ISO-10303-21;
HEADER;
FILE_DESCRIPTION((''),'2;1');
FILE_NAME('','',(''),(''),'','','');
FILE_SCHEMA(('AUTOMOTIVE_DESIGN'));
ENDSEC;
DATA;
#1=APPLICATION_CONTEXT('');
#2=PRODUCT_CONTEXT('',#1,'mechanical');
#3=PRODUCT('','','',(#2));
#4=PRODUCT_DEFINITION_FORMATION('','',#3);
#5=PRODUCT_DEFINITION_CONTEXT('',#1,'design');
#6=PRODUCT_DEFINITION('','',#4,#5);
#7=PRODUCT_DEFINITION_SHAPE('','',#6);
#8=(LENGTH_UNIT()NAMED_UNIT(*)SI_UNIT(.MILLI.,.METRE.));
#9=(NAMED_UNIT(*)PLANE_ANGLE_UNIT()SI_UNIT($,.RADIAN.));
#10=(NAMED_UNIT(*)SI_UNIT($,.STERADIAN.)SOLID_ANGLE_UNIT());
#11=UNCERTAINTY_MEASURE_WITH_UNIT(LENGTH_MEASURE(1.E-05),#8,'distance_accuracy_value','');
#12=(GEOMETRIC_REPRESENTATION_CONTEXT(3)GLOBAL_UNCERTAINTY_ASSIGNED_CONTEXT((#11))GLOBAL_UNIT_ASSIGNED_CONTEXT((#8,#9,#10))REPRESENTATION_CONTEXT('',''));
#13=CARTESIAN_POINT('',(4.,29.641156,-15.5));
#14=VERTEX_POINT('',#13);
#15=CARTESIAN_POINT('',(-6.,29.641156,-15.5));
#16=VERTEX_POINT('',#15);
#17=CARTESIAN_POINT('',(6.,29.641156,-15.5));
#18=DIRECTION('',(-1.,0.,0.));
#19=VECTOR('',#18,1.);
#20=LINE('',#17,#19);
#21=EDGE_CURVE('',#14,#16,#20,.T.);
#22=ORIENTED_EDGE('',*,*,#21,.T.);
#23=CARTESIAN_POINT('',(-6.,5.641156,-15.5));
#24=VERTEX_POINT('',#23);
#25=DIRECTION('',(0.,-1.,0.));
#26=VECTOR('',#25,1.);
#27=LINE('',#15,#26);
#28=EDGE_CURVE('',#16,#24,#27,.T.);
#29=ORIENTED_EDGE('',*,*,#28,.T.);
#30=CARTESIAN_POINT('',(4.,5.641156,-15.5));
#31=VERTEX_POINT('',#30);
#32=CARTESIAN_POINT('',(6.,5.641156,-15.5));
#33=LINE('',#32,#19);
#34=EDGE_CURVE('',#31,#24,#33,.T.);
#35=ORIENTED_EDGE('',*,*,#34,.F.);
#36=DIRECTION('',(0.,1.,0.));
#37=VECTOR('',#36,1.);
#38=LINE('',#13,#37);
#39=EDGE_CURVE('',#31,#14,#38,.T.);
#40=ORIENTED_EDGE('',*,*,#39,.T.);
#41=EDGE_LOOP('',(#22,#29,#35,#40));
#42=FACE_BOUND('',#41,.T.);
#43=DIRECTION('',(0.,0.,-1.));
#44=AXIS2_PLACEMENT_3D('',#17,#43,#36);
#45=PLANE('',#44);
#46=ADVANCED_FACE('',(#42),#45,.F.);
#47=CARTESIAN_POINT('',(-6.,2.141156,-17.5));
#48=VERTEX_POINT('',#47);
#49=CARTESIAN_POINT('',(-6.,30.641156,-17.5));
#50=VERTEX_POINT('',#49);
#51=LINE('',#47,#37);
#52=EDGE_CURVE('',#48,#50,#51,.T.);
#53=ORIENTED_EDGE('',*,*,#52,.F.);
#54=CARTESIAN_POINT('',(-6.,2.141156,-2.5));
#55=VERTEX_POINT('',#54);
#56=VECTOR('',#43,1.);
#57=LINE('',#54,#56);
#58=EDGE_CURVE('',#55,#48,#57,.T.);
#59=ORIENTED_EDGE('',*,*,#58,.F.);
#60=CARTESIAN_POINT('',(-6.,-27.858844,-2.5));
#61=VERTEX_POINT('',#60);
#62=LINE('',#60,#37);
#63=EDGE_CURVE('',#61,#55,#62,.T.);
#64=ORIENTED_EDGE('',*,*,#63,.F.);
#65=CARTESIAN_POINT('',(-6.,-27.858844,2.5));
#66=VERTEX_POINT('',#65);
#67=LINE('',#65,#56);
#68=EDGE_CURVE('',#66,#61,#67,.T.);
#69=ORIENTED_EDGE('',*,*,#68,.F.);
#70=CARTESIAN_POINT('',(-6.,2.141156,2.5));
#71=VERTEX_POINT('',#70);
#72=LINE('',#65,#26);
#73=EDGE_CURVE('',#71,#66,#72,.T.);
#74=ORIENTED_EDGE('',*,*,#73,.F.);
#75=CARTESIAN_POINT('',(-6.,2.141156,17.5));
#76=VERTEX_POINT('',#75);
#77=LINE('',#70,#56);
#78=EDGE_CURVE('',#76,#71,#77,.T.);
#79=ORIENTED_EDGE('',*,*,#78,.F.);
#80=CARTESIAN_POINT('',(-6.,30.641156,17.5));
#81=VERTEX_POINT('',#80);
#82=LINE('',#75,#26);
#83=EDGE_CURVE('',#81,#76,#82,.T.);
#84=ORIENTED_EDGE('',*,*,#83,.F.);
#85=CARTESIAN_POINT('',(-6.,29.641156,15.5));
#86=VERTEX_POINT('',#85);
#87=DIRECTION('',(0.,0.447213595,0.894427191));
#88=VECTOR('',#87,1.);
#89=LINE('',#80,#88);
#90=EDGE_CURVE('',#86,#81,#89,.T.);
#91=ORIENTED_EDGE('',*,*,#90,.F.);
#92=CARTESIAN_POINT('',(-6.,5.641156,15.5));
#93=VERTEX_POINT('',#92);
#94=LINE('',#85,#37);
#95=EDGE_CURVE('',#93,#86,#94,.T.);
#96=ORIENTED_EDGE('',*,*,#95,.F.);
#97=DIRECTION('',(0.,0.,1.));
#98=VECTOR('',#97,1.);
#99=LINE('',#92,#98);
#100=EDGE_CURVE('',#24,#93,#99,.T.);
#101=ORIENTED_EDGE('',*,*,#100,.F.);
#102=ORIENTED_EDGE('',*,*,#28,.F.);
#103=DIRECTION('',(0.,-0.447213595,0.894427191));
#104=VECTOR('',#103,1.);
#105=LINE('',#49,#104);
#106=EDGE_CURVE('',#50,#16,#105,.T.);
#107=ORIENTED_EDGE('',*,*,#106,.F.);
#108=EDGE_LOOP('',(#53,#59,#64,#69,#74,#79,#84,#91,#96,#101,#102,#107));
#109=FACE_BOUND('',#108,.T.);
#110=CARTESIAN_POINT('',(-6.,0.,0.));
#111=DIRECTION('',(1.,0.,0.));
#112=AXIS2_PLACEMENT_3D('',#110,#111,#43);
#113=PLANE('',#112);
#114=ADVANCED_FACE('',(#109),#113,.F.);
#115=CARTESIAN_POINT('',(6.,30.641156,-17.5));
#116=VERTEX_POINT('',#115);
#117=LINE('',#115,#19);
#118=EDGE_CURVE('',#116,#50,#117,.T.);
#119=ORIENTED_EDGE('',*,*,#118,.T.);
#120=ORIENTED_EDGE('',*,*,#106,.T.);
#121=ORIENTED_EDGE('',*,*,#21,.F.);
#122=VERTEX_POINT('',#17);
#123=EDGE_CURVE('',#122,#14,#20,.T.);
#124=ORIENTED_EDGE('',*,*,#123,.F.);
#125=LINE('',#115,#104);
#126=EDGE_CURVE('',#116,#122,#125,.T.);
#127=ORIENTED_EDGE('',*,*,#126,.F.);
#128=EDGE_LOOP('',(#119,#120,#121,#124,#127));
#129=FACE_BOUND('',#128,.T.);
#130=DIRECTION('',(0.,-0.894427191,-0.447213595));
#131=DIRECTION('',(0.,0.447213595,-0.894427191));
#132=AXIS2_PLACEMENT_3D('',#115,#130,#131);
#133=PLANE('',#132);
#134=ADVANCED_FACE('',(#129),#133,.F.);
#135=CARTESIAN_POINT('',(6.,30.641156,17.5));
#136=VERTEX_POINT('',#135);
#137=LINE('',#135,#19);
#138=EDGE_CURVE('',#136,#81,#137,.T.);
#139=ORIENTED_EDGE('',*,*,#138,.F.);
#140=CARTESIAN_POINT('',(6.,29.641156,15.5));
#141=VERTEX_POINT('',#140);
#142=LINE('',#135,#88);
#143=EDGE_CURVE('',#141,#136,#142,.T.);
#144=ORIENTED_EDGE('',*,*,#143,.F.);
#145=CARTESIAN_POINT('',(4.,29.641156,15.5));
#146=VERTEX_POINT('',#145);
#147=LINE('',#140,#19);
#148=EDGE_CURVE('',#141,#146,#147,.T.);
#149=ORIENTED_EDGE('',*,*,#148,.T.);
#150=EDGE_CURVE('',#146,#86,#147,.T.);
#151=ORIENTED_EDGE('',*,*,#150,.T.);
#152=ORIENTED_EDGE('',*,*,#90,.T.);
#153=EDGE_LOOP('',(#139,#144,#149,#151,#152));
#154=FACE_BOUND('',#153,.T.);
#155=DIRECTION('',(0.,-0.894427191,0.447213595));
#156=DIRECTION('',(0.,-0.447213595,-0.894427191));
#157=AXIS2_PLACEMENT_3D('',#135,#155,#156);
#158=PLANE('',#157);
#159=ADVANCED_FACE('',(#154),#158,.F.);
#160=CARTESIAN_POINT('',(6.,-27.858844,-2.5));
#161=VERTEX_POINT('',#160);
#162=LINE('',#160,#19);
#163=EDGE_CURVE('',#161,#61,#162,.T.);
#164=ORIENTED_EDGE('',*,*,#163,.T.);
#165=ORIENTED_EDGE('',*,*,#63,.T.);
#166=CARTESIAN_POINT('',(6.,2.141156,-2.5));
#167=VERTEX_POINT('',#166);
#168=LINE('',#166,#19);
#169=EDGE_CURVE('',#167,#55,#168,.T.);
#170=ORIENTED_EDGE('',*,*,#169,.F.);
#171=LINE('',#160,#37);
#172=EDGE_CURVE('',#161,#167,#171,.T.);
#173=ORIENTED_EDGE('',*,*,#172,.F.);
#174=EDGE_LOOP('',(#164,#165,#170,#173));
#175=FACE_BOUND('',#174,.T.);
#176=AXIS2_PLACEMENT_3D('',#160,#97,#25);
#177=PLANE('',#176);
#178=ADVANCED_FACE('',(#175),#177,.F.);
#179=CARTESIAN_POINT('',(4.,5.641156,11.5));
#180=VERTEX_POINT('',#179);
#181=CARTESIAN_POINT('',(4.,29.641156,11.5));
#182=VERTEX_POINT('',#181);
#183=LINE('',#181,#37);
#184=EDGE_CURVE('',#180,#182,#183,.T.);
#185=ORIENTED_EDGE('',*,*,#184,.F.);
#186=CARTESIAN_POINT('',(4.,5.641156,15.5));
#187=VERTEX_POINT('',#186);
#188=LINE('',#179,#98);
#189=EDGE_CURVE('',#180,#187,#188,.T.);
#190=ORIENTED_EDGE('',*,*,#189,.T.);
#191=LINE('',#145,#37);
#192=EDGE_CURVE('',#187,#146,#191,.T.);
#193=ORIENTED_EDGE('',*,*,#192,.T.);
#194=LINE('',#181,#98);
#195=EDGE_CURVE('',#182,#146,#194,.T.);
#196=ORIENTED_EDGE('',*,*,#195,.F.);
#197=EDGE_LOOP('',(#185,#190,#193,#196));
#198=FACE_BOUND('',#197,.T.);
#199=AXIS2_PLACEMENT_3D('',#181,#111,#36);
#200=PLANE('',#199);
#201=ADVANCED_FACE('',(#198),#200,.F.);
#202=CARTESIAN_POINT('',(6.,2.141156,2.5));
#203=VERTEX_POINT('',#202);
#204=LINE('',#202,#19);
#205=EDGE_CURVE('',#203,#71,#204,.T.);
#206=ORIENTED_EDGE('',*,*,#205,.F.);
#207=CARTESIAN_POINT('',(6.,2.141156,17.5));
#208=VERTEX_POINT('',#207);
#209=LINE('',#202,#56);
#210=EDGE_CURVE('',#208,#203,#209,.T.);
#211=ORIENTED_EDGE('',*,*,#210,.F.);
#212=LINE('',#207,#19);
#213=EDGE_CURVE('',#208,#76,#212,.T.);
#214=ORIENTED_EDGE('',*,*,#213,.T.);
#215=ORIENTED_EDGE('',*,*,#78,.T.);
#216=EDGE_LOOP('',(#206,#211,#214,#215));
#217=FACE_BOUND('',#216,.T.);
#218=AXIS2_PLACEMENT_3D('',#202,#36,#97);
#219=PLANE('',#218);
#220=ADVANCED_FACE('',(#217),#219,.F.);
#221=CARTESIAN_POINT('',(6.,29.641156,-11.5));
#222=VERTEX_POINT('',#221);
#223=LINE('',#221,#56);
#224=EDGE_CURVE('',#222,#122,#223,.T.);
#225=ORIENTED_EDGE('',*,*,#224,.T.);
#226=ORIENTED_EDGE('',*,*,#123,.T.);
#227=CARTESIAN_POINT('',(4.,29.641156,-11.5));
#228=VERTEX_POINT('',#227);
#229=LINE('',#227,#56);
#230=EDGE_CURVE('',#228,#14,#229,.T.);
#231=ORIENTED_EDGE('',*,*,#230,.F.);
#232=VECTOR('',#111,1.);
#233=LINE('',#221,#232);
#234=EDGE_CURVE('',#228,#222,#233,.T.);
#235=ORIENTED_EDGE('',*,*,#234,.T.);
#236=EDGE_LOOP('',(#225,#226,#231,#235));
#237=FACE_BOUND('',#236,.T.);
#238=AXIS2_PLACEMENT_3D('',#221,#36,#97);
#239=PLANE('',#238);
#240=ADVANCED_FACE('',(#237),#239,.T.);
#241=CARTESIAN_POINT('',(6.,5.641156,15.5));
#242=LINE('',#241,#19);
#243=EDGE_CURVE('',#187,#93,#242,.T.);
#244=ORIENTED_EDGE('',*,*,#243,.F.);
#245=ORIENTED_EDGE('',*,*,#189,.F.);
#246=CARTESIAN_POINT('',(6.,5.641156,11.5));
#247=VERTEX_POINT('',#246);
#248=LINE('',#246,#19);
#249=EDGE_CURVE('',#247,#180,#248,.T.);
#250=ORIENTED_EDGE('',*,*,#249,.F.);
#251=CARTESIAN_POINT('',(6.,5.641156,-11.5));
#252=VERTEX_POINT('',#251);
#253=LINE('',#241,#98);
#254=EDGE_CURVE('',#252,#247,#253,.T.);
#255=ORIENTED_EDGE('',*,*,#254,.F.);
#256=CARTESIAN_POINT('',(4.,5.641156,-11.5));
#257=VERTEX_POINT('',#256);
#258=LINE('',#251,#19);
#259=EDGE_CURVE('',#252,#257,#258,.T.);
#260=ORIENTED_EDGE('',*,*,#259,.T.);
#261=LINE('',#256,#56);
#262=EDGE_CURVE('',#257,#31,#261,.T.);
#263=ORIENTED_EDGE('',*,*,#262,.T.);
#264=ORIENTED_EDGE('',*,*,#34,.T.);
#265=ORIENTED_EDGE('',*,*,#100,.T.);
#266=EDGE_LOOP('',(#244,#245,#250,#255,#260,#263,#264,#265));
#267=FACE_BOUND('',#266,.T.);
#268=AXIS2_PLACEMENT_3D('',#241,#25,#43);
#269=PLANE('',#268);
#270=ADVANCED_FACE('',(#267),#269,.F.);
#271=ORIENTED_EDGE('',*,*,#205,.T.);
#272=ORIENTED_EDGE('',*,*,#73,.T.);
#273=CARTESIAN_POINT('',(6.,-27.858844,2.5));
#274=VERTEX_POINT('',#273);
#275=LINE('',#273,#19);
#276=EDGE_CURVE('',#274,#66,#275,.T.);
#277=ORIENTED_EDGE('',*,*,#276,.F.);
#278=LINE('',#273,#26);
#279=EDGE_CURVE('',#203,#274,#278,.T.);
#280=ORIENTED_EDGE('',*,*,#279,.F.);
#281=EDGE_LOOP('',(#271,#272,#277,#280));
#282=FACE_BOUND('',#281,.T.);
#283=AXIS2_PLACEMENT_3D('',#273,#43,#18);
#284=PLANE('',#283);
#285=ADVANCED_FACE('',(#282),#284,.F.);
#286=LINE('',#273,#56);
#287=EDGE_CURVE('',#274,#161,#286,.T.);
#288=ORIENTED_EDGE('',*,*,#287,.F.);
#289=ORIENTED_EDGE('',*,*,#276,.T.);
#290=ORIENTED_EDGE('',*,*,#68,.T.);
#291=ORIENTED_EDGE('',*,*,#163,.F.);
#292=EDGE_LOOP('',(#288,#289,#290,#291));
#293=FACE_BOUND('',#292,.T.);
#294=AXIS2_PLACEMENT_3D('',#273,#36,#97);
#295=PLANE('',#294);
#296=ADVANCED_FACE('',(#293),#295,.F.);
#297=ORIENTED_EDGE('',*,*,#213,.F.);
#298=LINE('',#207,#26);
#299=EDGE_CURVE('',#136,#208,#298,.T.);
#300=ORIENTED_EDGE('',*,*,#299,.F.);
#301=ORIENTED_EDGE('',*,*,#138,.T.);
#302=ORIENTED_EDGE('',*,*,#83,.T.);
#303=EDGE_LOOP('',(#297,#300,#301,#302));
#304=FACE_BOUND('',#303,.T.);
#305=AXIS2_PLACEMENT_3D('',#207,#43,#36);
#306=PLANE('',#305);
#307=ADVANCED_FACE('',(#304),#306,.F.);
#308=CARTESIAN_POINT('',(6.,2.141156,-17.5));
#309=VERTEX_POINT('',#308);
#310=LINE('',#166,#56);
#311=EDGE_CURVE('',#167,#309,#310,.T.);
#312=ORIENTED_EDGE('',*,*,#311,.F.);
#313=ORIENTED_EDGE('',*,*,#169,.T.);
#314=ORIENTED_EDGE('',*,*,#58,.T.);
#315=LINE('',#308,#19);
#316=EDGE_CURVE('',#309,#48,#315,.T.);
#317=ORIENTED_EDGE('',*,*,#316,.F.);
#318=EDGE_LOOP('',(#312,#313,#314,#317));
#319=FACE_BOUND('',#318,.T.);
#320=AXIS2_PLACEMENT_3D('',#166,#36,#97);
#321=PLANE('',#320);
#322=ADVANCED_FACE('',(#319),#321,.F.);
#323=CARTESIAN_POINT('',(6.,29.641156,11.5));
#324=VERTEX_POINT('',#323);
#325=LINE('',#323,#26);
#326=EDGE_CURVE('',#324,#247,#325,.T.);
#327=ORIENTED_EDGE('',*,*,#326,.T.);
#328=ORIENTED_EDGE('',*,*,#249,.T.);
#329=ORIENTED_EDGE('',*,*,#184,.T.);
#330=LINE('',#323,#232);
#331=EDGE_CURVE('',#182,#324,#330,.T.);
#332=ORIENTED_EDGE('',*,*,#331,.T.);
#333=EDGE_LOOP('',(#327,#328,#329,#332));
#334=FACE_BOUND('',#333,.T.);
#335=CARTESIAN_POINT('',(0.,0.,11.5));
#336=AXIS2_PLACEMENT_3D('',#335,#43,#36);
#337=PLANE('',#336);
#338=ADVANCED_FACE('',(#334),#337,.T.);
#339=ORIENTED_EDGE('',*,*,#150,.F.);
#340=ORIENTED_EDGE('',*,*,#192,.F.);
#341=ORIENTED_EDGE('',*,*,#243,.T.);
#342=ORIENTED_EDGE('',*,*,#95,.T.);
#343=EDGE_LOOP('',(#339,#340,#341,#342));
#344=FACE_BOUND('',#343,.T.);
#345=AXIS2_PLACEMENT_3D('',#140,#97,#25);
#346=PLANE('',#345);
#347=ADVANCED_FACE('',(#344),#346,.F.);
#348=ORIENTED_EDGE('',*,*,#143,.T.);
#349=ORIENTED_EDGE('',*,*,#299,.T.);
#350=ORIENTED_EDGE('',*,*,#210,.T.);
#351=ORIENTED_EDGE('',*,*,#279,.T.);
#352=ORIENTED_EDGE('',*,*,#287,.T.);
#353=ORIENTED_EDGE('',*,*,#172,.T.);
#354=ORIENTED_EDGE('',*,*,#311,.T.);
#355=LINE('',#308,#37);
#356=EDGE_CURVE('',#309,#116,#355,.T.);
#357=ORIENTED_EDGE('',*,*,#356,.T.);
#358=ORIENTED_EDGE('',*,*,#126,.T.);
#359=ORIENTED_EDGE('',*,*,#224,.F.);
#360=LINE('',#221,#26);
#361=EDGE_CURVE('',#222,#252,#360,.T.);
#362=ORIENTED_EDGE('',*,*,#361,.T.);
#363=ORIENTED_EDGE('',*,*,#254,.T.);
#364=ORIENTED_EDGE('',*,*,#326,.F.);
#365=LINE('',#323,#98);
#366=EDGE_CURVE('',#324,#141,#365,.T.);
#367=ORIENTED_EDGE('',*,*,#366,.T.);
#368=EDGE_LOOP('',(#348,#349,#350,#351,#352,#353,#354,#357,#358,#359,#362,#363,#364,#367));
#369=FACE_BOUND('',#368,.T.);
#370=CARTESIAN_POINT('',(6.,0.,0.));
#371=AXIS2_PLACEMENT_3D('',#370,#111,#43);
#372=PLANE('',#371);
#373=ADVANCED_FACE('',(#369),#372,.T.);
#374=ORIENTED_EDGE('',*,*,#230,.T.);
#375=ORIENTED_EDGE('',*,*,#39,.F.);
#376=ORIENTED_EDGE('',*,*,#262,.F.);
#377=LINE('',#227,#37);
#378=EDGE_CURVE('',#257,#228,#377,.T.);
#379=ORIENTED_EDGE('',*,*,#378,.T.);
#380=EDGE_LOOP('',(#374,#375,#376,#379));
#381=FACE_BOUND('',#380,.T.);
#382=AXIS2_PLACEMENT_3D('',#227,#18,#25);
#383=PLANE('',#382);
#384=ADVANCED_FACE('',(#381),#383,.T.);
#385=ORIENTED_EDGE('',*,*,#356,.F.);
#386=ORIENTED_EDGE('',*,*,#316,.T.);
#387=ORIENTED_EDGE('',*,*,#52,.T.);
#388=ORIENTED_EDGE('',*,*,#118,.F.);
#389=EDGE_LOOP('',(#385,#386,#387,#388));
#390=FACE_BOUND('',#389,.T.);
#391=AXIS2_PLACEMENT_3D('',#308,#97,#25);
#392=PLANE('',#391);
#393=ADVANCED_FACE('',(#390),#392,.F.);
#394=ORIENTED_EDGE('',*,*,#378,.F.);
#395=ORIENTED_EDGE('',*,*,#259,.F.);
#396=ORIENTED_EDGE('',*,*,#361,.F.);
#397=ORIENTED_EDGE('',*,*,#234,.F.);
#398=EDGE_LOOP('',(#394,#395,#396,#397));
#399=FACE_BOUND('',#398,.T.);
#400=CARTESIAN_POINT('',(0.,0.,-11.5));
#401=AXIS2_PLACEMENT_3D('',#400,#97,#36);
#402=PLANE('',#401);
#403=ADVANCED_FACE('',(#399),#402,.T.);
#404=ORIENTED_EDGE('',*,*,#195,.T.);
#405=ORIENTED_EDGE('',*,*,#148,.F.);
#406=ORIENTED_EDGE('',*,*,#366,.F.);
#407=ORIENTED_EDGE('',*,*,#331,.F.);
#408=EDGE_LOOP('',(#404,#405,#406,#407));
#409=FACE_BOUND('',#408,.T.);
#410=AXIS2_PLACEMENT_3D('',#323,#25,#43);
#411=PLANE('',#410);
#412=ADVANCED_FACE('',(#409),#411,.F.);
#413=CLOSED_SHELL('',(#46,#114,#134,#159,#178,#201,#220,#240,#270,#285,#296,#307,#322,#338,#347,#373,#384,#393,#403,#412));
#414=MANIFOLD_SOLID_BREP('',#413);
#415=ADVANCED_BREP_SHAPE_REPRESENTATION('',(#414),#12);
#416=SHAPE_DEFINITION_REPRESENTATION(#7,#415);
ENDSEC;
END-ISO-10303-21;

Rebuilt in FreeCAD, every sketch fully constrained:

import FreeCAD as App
import Part
import Sketcher
from FreeCAD import Vector
Q = App.Units.Quantity


def add_polygon(sketch, points):
    """Adds a closed chain of lines whose ends are joined by coincident constraints."""
    first, n = sketch.GeometryCount, len(points)
    for a, b in zip(points, points[1:] + points[:1]):
        sketch.addGeometry(Part.LineSegment(App.Vector(*a, 0), App.Vector(*b, 0)), False)
    for i in range(n):
        sketch.addConstraint(Sketcher.Constraint("Coincident", first + i, 2, first + (i + 1) % n, 1))

doc = App.newDocument("Part")
body = doc.addObject("PartDesign::Body", "Body")

# Sketch on YZ plane
sketch1 = body.newObject("Sketcher::SketchObject", "Sketch")
sketch1.AttachmentSupport = (doc.getObject("YZ_Plane"), [""])
sketch1.MapMode = "FlatFace"
add_polygon(sketch1, [(2.1, 2.5), (-27.9, 2.5), (-27.9, -2.5), (2.1, -2.5), (2.1, -17.5), (30.6, -17.5), (29.6, -15.5), (5.6, -15.5), (5.6, 15.5), (29.6, 15.5), (30.6, 17.5), (2.1, 17.5)])  # lines 0-11
sketch1.addConstraint(Sketcher.Constraint("Horizontal", 0))
sketch1.addConstraint(Sketcher.Constraint("Vertical", 1))
sketch1.addConstraint(Sketcher.Constraint("Horizontal", 2))
sketch1.addConstraint(Sketcher.Constraint("Vertical", 3))
sketch1.addConstraint(Sketcher.Constraint("Horizontal", 4))
sketch1.addConstraint(Sketcher.Constraint("Horizontal", 6))
sketch1.addConstraint(Sketcher.Constraint("Vertical", 7))
sketch1.addConstraint(Sketcher.Constraint("Horizontal", 8))
sketch1.addConstraint(Sketcher.Constraint("Horizontal", 10))
sketch1.addConstraint(Sketcher.Constraint("Vertical", 11))
sketch1.addConstraint(Sketcher.Constraint("Symmetric", 5, 2, 8, 2, -1))
sketch1.addConstraint(Sketcher.Constraint("Symmetric", 4, 2, 9, 2, -1))
sketch1.addConstraint(Sketcher.Constraint("Symmetric", 2, 2, 11, 2, -1))
sketch1.addConstraint(Sketcher.Constraint("DistanceX", 0, 2, 0, 1, Q("30 mm")))
sketch1.addConstraint(Sketcher.Constraint("DistanceX", 6, 2, 6, 1, Q("24 mm")))
sketch1.addConstraint(Sketcher.Constraint("DistanceY", 1, 2, 1, 1, Q("5 mm")))
sketch1.addConstraint(Sketcher.Constraint("DistanceY", 3, 2, 3, 1, Q("15 mm")))
sketch1.addConstraint(Sketcher.Constraint("DistanceY", 7, 1, 7, 2, Q("31 mm")))
sketch1.addConstraint(Sketcher.Constraint("DistanceX", 4, 1, 4, 2, Q("28.5 mm")))
sketch1.addConstraint(Sketcher.Constraint("DistanceX", 5, 2, 4, 2, Q("1 mm")))
sketch1.addConstraint(Sketcher.Constraint("DistanceX", 0, 2, -1, 1, Q("27.858844 mm")))
pad1 = body.newObject("PartDesign::Pad", "Pad")
pad1.Profile = sketch1
pad1.Length = 12
pad1.Midplane = True

# Sketch on XY plane
sketch2 = body.newObject("Sketcher::SketchObject", "Sketch001")
sketch2.AttachmentSupport = (doc.getObject("XY_Plane"), [""])
sketch2.MapMode = "FlatFace"
sketch2.AttachmentOffset = App.Placement(Vector(0, 0, 15.5), App.Rotation())
add_polygon(sketch2, [(6, 29.6), (6, 5.6), (4, 5.6), (4, 29.6)])  # lines 0-3
sketch2.addConstraint(Sketcher.Constraint("Vertical", 0))
sketch2.addConstraint(Sketcher.Constraint("Horizontal", 1))
sketch2.addConstraint(Sketcher.Constraint("Vertical", 2))
sketch2.addConstraint(Sketcher.Constraint("Horizontal", 3))
sketch2.addConstraint(Sketcher.Constraint("DistanceX", 1, 2, 1, 1, Q("2 mm")))
sketch2.addConstraint(Sketcher.Constraint("DistanceY", 0, 2, 0, 1, Q("24 mm")))
sketch2.addConstraint(Sketcher.Constraint("DistanceX", -1, 1, 0, 2, Q("6 mm")))
sketch2.addConstraint(Sketcher.Constraint("DistanceY", -1, 1, 0, 2, Q("5.641156 mm")))
pad2 = body.newObject("PartDesign::Pad", "Pad001")
pad2.Profile = sketch2
pad2.Length = 4
pad2.Reversed = True
doc.recompute()

mirrored = body.newObject("PartDesign::Mirrored", "Mirrored")
mirrored.Originals = [pad2]
mirrored.MirrorPlane = (doc.getObject("XY_Plane"), [""])
body.Tip = mirrored

doc.recompute()
